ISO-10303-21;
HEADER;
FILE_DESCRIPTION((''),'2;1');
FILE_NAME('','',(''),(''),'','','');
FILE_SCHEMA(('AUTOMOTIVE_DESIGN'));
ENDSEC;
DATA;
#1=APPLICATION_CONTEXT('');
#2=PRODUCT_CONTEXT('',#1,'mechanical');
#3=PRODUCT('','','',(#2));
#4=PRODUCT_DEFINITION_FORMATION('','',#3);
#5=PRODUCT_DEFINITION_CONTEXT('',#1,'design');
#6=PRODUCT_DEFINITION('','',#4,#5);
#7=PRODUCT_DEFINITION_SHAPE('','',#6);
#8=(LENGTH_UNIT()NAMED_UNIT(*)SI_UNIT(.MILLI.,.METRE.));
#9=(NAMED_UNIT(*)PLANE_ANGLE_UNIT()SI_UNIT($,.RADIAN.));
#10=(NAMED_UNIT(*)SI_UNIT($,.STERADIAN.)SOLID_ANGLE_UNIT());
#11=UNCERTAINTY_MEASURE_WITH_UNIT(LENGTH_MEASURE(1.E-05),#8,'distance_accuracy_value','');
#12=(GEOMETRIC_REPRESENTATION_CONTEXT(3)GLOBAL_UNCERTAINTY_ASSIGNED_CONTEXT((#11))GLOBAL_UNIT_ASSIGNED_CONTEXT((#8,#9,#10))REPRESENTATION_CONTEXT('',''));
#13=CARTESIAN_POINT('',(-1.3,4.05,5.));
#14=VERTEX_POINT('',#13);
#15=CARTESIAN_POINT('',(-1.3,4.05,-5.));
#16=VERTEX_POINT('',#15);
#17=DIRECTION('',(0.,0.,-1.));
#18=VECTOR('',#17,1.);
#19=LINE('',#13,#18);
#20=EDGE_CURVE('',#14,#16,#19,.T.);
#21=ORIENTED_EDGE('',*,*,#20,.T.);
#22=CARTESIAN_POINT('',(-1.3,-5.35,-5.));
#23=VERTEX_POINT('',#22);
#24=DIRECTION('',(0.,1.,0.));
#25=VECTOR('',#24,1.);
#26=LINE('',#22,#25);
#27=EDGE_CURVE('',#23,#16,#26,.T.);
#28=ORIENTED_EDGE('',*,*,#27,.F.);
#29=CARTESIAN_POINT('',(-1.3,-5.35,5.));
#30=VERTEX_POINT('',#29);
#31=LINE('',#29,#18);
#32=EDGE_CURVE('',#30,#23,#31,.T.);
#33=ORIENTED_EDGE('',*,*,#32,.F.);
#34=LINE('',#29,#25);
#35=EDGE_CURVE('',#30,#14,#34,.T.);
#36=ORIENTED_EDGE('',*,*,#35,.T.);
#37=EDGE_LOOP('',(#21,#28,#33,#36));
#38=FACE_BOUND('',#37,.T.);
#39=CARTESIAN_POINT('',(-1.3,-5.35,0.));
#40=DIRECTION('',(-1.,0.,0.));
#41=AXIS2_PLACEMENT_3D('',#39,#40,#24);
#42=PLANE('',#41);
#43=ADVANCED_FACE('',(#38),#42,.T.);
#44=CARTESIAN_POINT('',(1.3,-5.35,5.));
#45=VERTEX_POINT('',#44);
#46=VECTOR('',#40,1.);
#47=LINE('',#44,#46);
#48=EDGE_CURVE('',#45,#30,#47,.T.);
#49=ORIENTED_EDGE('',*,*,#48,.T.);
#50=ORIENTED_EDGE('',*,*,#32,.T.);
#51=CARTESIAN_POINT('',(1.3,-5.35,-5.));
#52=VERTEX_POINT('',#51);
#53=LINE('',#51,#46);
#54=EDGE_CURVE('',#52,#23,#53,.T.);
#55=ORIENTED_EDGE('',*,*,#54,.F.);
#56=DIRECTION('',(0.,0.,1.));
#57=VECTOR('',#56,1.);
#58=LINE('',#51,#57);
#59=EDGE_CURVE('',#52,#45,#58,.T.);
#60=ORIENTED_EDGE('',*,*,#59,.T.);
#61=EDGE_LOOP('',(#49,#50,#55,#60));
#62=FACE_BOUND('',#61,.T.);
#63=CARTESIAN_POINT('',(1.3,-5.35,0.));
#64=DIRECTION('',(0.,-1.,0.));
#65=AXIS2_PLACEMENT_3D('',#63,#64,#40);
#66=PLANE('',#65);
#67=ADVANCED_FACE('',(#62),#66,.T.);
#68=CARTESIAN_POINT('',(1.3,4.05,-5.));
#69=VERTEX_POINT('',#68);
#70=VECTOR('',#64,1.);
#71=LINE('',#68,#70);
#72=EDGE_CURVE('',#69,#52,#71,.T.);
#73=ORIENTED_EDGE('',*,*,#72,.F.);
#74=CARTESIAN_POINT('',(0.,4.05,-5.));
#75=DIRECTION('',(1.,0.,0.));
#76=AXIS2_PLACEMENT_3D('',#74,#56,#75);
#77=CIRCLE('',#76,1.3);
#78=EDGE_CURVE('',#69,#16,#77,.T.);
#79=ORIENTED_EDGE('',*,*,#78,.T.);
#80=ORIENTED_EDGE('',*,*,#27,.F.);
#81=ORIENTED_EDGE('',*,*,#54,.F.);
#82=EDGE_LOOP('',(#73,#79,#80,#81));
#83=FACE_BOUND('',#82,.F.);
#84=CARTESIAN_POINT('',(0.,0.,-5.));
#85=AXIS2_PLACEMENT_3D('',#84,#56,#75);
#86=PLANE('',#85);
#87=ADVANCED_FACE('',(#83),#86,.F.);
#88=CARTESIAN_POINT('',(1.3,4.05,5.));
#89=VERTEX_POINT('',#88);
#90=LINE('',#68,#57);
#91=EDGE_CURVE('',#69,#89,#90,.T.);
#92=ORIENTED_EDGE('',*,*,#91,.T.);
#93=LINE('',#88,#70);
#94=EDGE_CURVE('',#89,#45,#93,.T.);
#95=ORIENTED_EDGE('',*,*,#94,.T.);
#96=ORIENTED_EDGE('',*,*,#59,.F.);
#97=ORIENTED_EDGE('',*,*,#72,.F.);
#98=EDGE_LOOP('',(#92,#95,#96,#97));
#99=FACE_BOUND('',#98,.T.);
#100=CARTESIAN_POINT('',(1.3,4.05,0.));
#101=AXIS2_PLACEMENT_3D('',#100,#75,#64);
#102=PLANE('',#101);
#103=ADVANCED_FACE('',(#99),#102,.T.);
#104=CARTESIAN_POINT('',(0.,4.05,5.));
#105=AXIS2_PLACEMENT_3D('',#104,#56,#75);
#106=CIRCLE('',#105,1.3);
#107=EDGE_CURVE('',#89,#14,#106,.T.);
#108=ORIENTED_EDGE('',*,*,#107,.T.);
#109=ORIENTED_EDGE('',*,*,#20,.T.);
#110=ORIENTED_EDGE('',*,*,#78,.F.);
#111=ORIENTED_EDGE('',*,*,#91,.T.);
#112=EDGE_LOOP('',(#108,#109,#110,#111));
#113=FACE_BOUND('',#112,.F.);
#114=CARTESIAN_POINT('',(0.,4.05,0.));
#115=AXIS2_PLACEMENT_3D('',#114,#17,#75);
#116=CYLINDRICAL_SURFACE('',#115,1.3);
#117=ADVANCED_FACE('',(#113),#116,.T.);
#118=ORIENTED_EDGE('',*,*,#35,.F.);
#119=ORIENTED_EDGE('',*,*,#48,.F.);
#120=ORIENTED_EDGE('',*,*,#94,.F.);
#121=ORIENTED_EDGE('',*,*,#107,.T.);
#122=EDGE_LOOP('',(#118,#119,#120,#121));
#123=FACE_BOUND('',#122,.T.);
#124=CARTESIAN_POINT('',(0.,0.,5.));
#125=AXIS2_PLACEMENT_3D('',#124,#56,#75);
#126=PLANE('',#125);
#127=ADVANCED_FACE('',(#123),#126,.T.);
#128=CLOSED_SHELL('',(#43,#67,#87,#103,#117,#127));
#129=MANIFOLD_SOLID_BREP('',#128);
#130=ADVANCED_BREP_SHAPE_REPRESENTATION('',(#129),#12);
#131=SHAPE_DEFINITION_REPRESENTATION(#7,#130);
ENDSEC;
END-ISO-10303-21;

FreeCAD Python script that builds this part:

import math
import FreeCAD as App
import Part
import Sketcher
from FreeCAD import Vector
Q = App.Units.Quantity

doc = App.newDocument("Part")
body = doc.addObject("PartDesign::Body", "Body")

# Sketch on XY plane
sketch1 = doc.addObject("Sketcher::SketchObject", "Sketch")
body.addObject(sketch1)
sketch1.AttachmentSupport = (doc.XY_Plane, [""])
sketch1.MapMode = "FlatFace"
sketch1.addGeometry([
    Part.LineSegment(Vector(-1.3, -5.3, 0), Vector(1.3, -5.3, 0)),
    Part.LineSegment(Vector(1.3, -5.3, 0), Vector(1.3, 4, 0)),
    Part.ArcOfCircle(Part.Circle(Vector(0, 4, 0), Vector(0, 0, 1), 1.3), math.radians(0), math.radians(180)),
    Part.LineSegment(Vector(-1.3, 4, 0), Vector(-1.3, -5.3, 0)),
], False)
sketch1.addConstraint([
    Sketcher.Constraint("Coincident", 0, 2, 1, 1),
    Sketcher.Constraint("Tangent", 1, 2, 2, 1),
    Sketcher.Constraint("Tangent", 2, 2, 3, 1),
    Sketcher.Constraint("Coincident", 3, 2, 0, 1),
    Sketcher.Constraint("Horizontal", 0),
    Sketcher.Constraint("Vertical", 1),
    Sketcher.Constraint("Vertical", 3),
    Sketcher.Constraint("PointOnObject", 2, 3, -2),
    Sketcher.Constraint("Radius", 2, Q("1.3 mm")),
    Sketcher.Constraint("DistanceY", 1, 1, 1, 2, Q("9.4 mm")),
    Sketcher.Constraint("DistanceY", -1, 1, 2, 3, Q("4.05 mm")),
])
pad1 = doc.addObject("PartDesign::Pad", "Pad")
body.addObject(pad1)
pad1.Profile = sketch1
pad1.Length = 10
pad1.Midplane = True

doc.recompute()
